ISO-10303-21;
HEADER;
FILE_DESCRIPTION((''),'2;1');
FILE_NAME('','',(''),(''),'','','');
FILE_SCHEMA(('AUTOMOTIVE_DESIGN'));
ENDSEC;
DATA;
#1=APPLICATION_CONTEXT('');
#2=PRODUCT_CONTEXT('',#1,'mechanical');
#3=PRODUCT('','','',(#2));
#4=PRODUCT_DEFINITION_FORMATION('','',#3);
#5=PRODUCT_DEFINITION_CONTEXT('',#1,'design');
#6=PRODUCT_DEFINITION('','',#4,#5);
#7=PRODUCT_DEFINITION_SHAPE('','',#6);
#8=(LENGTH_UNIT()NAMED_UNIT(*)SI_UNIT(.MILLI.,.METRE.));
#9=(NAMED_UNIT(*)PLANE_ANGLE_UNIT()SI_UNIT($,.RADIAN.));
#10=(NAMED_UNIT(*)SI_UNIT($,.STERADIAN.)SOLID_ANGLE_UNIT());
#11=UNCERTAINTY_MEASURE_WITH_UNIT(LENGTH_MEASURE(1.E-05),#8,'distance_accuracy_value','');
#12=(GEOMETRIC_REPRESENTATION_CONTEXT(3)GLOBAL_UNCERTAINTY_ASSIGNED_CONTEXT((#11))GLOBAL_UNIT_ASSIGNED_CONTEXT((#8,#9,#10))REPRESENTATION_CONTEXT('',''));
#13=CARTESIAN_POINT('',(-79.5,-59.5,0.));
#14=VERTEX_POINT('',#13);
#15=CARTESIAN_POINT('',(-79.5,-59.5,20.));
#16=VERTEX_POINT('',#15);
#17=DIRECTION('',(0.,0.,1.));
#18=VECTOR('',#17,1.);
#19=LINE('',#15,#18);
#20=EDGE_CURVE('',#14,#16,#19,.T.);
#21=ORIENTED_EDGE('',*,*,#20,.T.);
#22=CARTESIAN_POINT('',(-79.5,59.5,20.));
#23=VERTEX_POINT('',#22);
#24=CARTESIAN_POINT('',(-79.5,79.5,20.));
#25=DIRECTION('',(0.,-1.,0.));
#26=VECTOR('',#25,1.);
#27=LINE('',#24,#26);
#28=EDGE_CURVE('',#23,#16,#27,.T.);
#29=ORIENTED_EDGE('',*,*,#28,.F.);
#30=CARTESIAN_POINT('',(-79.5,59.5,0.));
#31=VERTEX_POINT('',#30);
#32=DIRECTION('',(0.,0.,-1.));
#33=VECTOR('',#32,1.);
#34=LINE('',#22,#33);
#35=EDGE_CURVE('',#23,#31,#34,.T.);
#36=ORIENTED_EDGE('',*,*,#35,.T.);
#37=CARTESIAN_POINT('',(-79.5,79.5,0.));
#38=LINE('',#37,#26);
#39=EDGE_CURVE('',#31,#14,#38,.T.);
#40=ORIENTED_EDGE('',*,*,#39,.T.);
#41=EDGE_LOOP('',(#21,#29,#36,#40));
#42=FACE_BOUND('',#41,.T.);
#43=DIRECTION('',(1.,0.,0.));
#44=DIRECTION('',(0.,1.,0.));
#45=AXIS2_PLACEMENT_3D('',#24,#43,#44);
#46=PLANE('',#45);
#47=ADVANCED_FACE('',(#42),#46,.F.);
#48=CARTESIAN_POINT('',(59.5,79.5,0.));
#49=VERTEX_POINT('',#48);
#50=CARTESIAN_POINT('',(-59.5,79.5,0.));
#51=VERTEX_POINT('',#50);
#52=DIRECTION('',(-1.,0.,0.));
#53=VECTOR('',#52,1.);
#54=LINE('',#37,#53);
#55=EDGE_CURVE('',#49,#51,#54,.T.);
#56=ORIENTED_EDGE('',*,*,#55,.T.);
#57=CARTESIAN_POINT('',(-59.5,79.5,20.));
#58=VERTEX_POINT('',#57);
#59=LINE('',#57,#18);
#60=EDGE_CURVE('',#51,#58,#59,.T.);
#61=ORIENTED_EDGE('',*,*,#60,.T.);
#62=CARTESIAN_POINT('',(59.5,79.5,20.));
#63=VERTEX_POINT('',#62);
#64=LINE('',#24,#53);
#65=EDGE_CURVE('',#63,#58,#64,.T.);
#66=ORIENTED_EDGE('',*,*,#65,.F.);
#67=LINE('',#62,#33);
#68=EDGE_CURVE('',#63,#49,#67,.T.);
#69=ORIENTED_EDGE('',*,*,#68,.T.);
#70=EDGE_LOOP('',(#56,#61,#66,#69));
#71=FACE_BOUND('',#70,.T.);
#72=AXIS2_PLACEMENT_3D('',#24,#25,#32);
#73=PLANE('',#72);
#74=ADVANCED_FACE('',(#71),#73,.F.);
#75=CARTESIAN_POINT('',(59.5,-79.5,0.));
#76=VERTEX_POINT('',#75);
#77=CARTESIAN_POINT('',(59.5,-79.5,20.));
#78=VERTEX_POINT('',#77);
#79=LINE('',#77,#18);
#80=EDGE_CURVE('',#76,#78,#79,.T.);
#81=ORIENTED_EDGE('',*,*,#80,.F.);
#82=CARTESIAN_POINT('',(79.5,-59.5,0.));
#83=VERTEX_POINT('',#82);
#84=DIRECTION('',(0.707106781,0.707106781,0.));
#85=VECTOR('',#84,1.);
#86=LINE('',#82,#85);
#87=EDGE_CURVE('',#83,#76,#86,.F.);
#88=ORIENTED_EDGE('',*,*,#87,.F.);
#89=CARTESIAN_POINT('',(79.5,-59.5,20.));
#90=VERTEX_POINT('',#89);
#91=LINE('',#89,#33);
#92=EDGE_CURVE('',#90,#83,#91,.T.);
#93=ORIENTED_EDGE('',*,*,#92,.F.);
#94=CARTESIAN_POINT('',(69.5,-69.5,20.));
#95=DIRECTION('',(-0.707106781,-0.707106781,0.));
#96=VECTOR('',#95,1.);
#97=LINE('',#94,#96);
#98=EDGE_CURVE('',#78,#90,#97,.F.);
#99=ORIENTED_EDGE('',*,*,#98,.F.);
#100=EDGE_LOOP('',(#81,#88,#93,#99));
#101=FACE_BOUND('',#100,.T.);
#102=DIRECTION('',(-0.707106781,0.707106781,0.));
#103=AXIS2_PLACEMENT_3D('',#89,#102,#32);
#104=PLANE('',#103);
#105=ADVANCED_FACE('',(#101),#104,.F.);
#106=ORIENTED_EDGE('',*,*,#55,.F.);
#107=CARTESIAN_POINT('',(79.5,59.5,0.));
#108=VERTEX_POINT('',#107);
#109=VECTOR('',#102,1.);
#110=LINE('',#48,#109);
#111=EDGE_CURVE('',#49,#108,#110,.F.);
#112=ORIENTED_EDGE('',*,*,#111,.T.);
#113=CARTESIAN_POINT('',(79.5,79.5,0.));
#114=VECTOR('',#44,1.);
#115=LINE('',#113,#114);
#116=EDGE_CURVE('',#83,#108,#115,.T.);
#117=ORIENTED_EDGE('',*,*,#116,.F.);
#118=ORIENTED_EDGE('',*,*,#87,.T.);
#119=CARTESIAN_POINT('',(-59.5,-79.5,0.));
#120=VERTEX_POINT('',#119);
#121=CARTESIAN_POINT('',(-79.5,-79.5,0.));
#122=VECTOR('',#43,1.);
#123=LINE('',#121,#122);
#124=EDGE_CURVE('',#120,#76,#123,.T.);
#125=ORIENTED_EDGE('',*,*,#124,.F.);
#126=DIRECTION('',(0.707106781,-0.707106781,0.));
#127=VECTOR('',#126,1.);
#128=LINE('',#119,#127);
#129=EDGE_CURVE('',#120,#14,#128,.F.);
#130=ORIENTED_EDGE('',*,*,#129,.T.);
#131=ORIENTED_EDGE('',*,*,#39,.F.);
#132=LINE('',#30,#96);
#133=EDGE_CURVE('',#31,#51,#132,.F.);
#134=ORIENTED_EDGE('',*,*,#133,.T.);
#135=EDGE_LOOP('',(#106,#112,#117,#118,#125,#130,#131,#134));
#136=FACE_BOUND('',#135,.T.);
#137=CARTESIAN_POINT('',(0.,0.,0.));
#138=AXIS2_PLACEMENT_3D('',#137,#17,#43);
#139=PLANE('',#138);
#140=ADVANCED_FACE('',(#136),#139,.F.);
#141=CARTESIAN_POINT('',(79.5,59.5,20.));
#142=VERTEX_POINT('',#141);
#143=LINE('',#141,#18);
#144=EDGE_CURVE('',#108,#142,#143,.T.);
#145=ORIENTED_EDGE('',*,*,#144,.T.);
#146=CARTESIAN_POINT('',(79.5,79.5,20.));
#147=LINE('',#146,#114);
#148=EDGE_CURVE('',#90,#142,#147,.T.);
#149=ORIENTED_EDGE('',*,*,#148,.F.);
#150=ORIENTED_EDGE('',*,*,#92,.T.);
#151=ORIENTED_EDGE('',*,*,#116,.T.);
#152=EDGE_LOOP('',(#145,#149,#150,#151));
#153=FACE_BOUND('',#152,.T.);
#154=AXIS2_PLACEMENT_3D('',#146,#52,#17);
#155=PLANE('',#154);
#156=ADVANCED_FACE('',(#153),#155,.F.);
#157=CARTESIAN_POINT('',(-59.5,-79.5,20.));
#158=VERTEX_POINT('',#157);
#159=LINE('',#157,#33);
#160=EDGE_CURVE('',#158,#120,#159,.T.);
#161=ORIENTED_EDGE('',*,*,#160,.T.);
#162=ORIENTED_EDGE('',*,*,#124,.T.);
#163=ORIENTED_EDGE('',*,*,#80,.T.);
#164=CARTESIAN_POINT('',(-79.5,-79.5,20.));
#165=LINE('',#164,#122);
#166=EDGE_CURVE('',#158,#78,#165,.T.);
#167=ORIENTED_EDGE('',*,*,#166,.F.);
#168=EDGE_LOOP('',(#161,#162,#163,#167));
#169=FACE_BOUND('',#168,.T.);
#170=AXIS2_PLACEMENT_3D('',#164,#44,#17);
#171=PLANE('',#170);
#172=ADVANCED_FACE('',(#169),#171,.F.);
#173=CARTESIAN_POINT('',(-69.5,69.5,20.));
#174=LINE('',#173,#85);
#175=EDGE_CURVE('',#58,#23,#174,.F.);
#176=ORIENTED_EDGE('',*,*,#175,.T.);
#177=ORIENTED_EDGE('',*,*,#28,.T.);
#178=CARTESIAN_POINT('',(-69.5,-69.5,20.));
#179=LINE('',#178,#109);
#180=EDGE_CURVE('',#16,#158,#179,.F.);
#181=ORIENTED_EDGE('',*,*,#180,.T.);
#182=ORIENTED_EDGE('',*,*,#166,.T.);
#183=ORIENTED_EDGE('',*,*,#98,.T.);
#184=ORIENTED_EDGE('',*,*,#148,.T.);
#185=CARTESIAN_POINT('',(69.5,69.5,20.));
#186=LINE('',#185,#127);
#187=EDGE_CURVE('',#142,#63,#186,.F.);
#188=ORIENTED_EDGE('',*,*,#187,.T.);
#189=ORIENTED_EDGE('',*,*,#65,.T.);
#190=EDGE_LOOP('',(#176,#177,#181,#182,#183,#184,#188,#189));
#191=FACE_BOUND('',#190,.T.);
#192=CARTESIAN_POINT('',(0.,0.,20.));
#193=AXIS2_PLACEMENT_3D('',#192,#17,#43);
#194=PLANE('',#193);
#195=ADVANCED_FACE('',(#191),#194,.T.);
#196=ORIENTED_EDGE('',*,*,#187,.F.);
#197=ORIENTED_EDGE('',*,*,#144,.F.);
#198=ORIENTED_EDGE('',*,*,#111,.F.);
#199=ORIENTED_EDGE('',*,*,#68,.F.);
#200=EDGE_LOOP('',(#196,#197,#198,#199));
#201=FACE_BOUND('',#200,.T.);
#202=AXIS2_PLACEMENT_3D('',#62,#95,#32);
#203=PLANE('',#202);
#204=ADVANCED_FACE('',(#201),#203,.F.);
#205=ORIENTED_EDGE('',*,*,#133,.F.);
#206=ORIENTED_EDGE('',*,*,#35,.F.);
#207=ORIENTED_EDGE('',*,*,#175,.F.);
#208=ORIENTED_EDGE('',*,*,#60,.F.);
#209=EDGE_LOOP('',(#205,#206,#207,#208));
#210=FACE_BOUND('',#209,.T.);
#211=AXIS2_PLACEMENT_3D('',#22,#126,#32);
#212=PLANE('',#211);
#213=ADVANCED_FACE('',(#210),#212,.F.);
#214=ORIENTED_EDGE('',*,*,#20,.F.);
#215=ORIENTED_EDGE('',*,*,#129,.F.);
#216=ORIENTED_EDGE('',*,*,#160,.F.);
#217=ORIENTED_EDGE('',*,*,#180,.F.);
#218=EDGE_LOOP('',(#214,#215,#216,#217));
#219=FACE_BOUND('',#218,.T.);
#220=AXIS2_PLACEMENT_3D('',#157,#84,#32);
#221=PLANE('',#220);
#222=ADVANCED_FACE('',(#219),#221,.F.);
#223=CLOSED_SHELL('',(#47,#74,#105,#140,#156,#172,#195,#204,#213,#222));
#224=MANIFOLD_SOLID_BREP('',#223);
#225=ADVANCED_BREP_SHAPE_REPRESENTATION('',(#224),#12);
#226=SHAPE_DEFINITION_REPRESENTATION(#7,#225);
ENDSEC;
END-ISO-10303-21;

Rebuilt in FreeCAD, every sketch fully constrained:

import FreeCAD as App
import Part
import Sketcher

V = App.Vector


def edges_at(feature, points):
    """Names of the edges that pass closest to the given points."""
    edges = feature.Shape.Edges
    near = lambda p: min(range(len(edges)), key=lambda i: edges[i].distToShape(Part.Vertex(*p))[0])
    return sorted({f"Edge{near(p) + 1}" for p in points})


def add_polygon(sketch, points):
    """Adds a closed chain of lines whose ends are joined by coincident constraints."""
    first, n = sketch.GeometryCount, len(points)
    for a, b in zip(points, points[1:] + points[:1]):
        sketch.addGeometry(Part.LineSegment(App.Vector(*a, 0), App.Vector(*b, 0)), False)
    for i in range(n):
        sketch.addConstraint(Sketcher.Constraint("Coincident", first + i, 2, first + (i + 1) % n, 1))

doc = App.newDocument("Part")
params = doc.addObject("Spreadsheet::Sheet", "Params")
for row, (alias, value) in enumerate([
    ("sketch1_width", "159 mm"),
    ("pad1_length", "20 mm"),
    ("chamfer_size", "20 mm"),
], start=1):
    params.set(f"A{row}", alias)
    params.set(f"B{row}", "=" + value)
    params.setAlias(f"B{row}", alias)

body = doc.addObject("PartDesign::Body", "Body")

# Sketch on XY plane
sketch1 = body.newObject("Sketcher::SketchObject", "Sketch")
sketch1.AttachmentSupport = (doc.getObject("XY_Plane"), [""])
sketch1.MapMode = "FlatFace"
add_polygon(sketch1, [(-79.5, 79.5), (-79.5, -79.5), (79.5, -79.5), (79.5, 79.5)])  # lines 0-3
sketch1.addConstraint(Sketcher.Constraint("Vertical", 0))
sketch1.addConstraint(Sketcher.Constraint("Horizontal", 1))
sketch1.addConstraint(Sketcher.Constraint("Vertical", 2))
sketch1.addConstraint(Sketcher.Constraint("Horizontal", 3))
sketch1.addConstraint(Sketcher.Constraint("Symmetric", 0, 2, 2, 2, -1, 1))
sketch1.addConstraint(Sketcher.Constraint("Equal", 3, 0))
sketch1.addConstraint(Sketcher.Constraint("DistanceX", 1, 1, 1, 2, 159.0))
sketch1.setExpression("Constraints[10]", "Params.sketch1_width")
pad1 = body.newObject("PartDesign::Pad", "Pad")
pad1.Profile = sketch1
pad1.setExpression("Length", "Params.pad1_length")
doc.recompute()

chamfer = body.newObject("PartDesign::Chamfer", "Chamfer")
chamfer.Base = (pad1, edges_at(pad1, [
    (79.5, -79.5, 10),
    (-79.5, -79.5, 10),
    (-79.5, 79.5, 10),
    (79.5, 79.5, 10),
]))
chamfer.setExpression("Size", "Params.chamfer_size")

doc.recompute()
